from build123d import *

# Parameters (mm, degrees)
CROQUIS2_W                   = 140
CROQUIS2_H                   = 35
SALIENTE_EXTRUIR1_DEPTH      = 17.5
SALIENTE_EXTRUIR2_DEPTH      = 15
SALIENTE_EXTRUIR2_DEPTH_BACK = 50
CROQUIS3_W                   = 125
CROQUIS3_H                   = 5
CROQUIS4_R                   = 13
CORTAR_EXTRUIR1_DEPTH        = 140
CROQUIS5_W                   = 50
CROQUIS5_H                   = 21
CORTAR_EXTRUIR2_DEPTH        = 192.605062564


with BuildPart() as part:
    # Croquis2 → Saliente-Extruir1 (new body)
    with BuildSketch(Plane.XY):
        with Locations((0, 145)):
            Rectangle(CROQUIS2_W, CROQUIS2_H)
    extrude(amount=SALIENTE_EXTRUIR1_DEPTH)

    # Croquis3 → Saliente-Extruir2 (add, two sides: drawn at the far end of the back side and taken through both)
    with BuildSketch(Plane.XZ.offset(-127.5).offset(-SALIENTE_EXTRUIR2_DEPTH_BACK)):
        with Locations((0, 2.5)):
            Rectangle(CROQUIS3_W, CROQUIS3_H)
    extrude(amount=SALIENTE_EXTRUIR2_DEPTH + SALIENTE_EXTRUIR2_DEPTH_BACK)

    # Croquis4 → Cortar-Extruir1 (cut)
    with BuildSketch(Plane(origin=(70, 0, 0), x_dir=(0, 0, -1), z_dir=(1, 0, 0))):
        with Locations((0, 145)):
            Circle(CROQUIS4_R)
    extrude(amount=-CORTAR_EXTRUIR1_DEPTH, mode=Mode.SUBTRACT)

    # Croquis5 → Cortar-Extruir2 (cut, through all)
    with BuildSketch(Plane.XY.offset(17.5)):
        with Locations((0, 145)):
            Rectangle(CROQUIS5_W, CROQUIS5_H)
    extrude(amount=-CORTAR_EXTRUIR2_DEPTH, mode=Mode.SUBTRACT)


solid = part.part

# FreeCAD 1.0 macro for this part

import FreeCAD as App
import Part
import Sketcher


def add_polygon(sketch, points):
    """Adds a closed chain of lines whose ends are joined by coincident constraints."""
    first, n = sketch.GeometryCount, len(points)
    for a, b in zip(points, points[1:] + points[:1]):
        sketch.addGeometry(Part.LineSegment(App.Vector(*a, 0), App.Vector(*b, 0)), False)
    for i in range(n):
        sketch.addConstraint(Sketcher.Constraint("Coincident", first + i, 2, first + (i + 1) % n, 1))

doc = App.newDocument("Part")
body = doc.addObject("PartDesign::Body", "Body")

# Sketch on XY plane
sketch1 = doc.addObject("Sketcher::SketchObject", "Sketch")
body.addObject(sketch1)
sketch1.AttachmentSupport = (doc.XY_Plane, [""])
sketch1.MapMode = "FlatFace"
add_polygon(sketch1, [(-70, 162.5), (-70, 127.5), (70, 127.5), (70, 162.5)])  # lines 0-3
sketch1.addConstraint([
    Sketcher.Constraint("Vertical", 0),
    Sketcher.Constraint("Horizontal", 1),
    Sketcher.Constraint("Vertical", 2),
    Sketcher.Constraint("Horizontal", 3),
    Sketcher.Constraint("DistanceX", 1, 1, 1, 2, 140.0),
    Sketcher.Constraint("DistanceY", 0, 2, 0, 1, 35.0),
    Sketcher.Constraint("DistanceX", 0, 2, -1, 1, 70.0),
    Sketcher.Constraint("DistanceY", -1, 1, 0, 2, 127.5),
])
pad1 = doc.addObject("PartDesign::Pad", "Pad")
body.addObject(pad1)
pad1.Profile = sketch1
pad1.Length = 17.5

# Sketch on XZ plane
sketch2 = doc.addObject("Sketcher::SketchObject", "Sketch001")
body.addObject(sketch2)
sketch2.AttachmentSupport = (doc.XZ_Plane, [""])
sketch2.MapMode = "FlatFace"
sketch2.AttachmentOffset = App.Placement(App.Vector(0, 0, -127.5), App.Rotation())
add_polygon(sketch2, [(-62.5, 5), (-62.5, 0), (62.5, 0), (62.5, 5)])  # lines 0-3
sketch2.addConstraint([
    Sketcher.Constraint("Vertical", 0),
    Sketcher.Constraint("Horizontal", 1),
    Sketcher.Constraint("Vertical", 2),
    Sketcher.Constraint("Horizontal", 3),
    Sketcher.Constraint("Symmetric", 0, 2, 1, 2, -1, 1),
    Sketcher.Constraint("DistanceX", 1, 1, 1, 2, 125.0),
    Sketcher.Constraint("DistanceY", 0, 2, 0, 1, 5.0),
])
pad2 = doc.addObject("PartDesign::Pad", "Pad001")
body.addObject(pad2)
pad2.Profile = sketch2
pad2.Type = "TwoLengths"
pad2.Length = 15
pad2.Length2 = 50

# Sketch on YZ plane
sketch3 = doc.addObject("Sketcher::SketchObject", "Sketch002")
body.addObject(sketch3)
sketch3.AttachmentSupport = (doc.YZ_Plane, [""])
sketch3.MapMode = "FlatFace"
sketch3.AttachmentOffset = App.Placement(App.Vector(0, 0, 70), App.Rotation())
sketch3.addGeometry(Part.Circle(App.Vector(145, 0, 0), App.Vector(0, 0, 1), 13), False)
sketch3.addConstraint([
    Sketcher.Constraint("PointOnObject", 0, 3, -1),
    Sketcher.Constraint("Diameter", 0, 26.0),
    Sketcher.Constraint("DistanceX", -1, 1, 0, 3, 145.0),
])
pocket1 = doc.addObject("PartDesign::Pocket", "Pocket")
body.addObject(pocket1)
pocket1.Profile = sketch3
pocket1.Length = 140

# Sketch on XY plane
sketch4 = doc.addObject("Sketcher::SketchObject", "Sketch003")
body.addObject(sketch4)
sketch4.AttachmentSupport = (doc.XY_Plane, [""])
sketch4.MapMode = "FlatFace"
sketch4.AttachmentOffset = App.Placement(App.Vector(0, 0, 17.5), App.Rotation())
add_polygon(sketch4, [(-25, 155.5), (-25, 134.5), (25, 134.5), (25, 155.5)])  # lines 0-3
sketch4.addConstraint([
    Sketcher.Constraint("Vertical", 0),
    Sketcher.Constraint("Horizontal", 1),
    Sketcher.Constraint("Vertical", 2),
    Sketcher.Constraint("Horizontal", 3),
    Sketcher.Constraint("DistanceX", 1, 1, 1, 2, 50.0),
    Sketcher.Constraint("DistanceY", 0, 2, 0, 1, 21.0),
    Sketcher.Constraint("DistanceX", 0, 2, -1, 1, 25.0),
    Sketcher.Constraint("DistanceY", -1, 1, 0, 2, 134.5),
])
pocket2 = doc.addObject("PartDesign::Pocket", "Pocket001")
body.addObject(pocket2)
pocket2.Profile = sketch4
pocket2.Type = "ThroughAll"

doc.recompute()
